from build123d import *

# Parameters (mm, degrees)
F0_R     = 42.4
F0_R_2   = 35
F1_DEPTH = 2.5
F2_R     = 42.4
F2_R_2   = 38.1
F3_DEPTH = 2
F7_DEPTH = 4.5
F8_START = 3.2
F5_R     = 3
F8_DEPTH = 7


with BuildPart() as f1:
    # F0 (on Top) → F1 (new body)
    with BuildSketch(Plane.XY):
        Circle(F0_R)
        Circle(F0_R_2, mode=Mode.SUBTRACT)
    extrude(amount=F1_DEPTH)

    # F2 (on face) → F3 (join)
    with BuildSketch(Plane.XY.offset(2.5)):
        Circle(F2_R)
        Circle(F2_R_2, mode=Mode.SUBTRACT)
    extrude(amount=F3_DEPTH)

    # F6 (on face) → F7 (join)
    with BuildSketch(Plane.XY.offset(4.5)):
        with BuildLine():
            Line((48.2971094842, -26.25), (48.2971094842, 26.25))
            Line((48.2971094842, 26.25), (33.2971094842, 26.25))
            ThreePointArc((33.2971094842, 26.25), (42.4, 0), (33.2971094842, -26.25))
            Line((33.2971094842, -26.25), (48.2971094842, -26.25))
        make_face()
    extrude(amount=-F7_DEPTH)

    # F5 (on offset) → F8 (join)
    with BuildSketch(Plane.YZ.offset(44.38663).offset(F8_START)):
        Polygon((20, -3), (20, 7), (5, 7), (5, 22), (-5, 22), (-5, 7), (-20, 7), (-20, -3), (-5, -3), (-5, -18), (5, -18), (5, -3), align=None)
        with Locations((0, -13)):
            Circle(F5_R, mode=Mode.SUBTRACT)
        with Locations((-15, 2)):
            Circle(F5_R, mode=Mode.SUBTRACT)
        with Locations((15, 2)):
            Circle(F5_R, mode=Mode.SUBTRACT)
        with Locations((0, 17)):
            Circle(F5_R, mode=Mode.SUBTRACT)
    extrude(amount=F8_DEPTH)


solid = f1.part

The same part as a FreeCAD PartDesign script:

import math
import FreeCAD as App
import Part
import Sketcher

V = App.Vector


def add_polygon(sketch, points):
    """Adds a closed chain of lines whose ends are joined by coincident constraints."""
    first, n = sketch.GeometryCount, len(points)
    for a, b in zip(points, points[1:] + points[:1]):
        sketch.addGeometry(Part.LineSegment(App.Vector(*a, 0), App.Vector(*b, 0)), False)
    for i in range(n):
        sketch.addConstraint(Sketcher.Constraint("Coincident", first + i, 2, first + (i + 1) % n, 1))

doc = App.newDocument("Part")
body = doc.addObject("PartDesign::Body", "Body")

# Sketch on XY plane
sketch1 = doc.addObject("Sketcher::SketchObject", "Sketch")
body.addObject(sketch1)
sketch1.AttachmentSupport = (doc.XY_Plane, [""])
sketch1.MapMode = "FlatFace"
sketch1.addGeometry(Part.Circle(V(0, 0, 0), V(0, 0, 1), 42), False)
sketch1.addGeometry(Part.Circle(V(0, 0, 0), V(0, 0, 1), 35), False)
sketch1.addConstraint(Sketcher.Constraint("Coincident", 0, 3, -1, 1))
sketch1.addConstraint(Sketcher.Constraint("Coincident", 1, 3, -1, 1))
sketch1.addConstraint(Sketcher.Constraint("Diameter", 1, 70.0))
sketch1.addConstraint(Sketcher.Constraint("Diameter", 0, 84.8))
pad1 = doc.addObject("PartDesign::Pad", "Pad")
body.addObject(pad1)
pad1.Profile = sketch1
pad1.Length = 2.5

# Sketch on XY plane
sketch2 = doc.addObject("Sketcher::SketchObject", "Sketch001")
body.addObject(sketch2)
sketch2.AttachmentSupport = (doc.XY_Plane, [""])
sketch2.MapMode = "FlatFace"
sketch2.AttachmentOffset = App.Placement(V(0, 0, 2.5), App.Rotation())
sketch2.addGeometry(Part.Circle(V(0, 0, 0), V(0, 0, 1), 42), False)
sketch2.addGeometry(Part.Circle(V(0, 0, 0), V(0, 0, 1), 38), False)
sketch2.addConstraint(Sketcher.Constraint("Coincident", 0, 3, -1, 1))
sketch2.addConstraint(Sketcher.Constraint("Coincident", 1, 3, -1, 1))
sketch2.addConstraint(Sketcher.Constraint("Diameter", 0, 84.8))
sketch2.addConstraint(Sketcher.Constraint("Diameter", 1, 76.2))
pad2 = doc.addObject("PartDesign::Pad", "Pad001")
body.addObject(pad2)
pad2.Profile = sketch2
pad2.Length = 2

# Sketch on XY plane
sketch3 = doc.addObject("Sketcher::SketchObject", "Sketch002")
body.addObject(sketch3)
sketch3.AttachmentSupport = (doc.XY_Plane, [""])
sketch3.MapMode = "FlatFace"
sketch3.AttachmentOffset = App.Placement(V(0, 0, 4.5), App.Rotation())
sketch3.addGeometry(Part.LineSegment(V(48, -26, 0), V(48, 26, 0)), False)
sketch3.addGeometry(Part.LineSegment(V(48, 26, 0), V(33, 26, 0)), False)
sketch3.addGeometry(Part.ArcOfCircle(Part.Circle(V(0, 0, 0), V(0, 0, 1), 42), math.radians(-38), math.radians(38)), False)
sketch3.addGeometry(Part.LineSegment(V(33, -26, 0), V(48, -26, 0)), False)
sketch3.addConstraint(Sketcher.Constraint("Coincident", 0, 2, 1, 1))
sketch3.addConstraint(Sketcher.Constraint("Coincident", 1, 2, 2, 2))
sketch3.addConstraint(Sketcher.Constraint("Coincident", 2, 1, 3, 1))
sketch3.addConstraint(Sketcher.Constraint("Coincident", 3, 2, 0, 1))
sketch3.addConstraint(Sketcher.Constraint("Vertical", 0))
sketch3.addConstraint(Sketcher.Constraint("Horizontal", 1))
sketch3.addConstraint(Sketcher.Constraint("Horizontal", 3))
sketch3.addConstraint(Sketcher.Constraint("Coincident", 2, 3, -1, 1))
sketch3.addConstraint(Sketcher.Constraint("Vertical", 1, 2, 2, 1))
sketch3.addConstraint(Sketcher.Constraint("Radius", 2, 42.4))
sketch3.addConstraint(Sketcher.Constraint("DistanceX", 1, 2, 1, 1, 15.0))
sketch3.addConstraint(Sketcher.Constraint("DistanceY", 0, 1, 0, 2, 52.5))
pad3 = doc.addObject("PartDesign::Pad", "Pad002")
body.addObject(pad3)
pad3.Profile = sketch3
pad3.Length = 4.5
pad3.Reversed = True

# Sketch on YZ plane
sketch4 = doc.addObject("Sketcher::SketchObject", "Sketch003")
body.addObject(sketch4)
sketch4.AttachmentSupport = (doc.YZ_Plane, [""])
sketch4.MapMode = "FlatFace"
sketch4.AttachmentOffset = App.Placement(V(0, 0, 47.58663), App.Rotation())
add_polygon(sketch4, [(20, -3), (20, 7), (5, 7), (5, 22), (-5, 22), (-5, 7), (-20, 7), (-20, -3), (-5, -3), (-5, -18), (5, -18), (5, -3)])  # lines 0-11
sketch4.addGeometry(Part.Circle(V(0, -13, 0), V(0, 0, 1), 3), False)  # 12
sketch4.addGeometry(Part.Circle(V(-15, 2, 0), V(0, 0, 1), 3), False)  # 13
sketch4.addGeometry(Part.Circle(V(15, 2, 0), V(0, 0, 1), 3), False)  # 14
sketch4.addGeometry(Part.Circle(V(0, 17, 0), V(0, 0, 1), 3), False)  # 15
sketch4.addConstraint(Sketcher.Constraint("Vertical", 0))
sketch4.addConstraint(Sketcher.Constraint("Horizontal", 1))
sketch4.addConstraint(Sketcher.Constraint("Vertical", 2))
sketch4.addConstraint(Sketcher.Constraint("Horizontal", 3))
sketch4.addConstraint(Sketcher.Constraint("Vertical", 4))
sketch4.addConstraint(Sketcher.Constraint("Horizontal", 5))
sketch4.addConstraint(Sketcher.Constraint("Vertical", 6))
sketch4.addConstraint(Sketcher.Constraint("Horizontal", 7))
sketch4.addConstraint(Sketcher.Constraint("Vertical", 8))
sketch4.addConstraint(Sketcher.Constraint("Horizontal", 9))
sketch4.addConstraint(Sketcher.Constraint("Vertical", 10))
sketch4.addConstraint(Sketcher.Constraint("Horizontal", 11))
sketch4.addConstraint(Sketcher.Constraint("Equal", 12, 13))
sketch4.addConstraint(Sketcher.Constraint("Equal", 13, 14))
sketch4.addConstraint(Sketcher.Constraint("Equal", 14, 15))
sketch4.addConstraint(Sketcher.Constraint("Symmetric", 13, 3, 14, 3, -2))
sketch4.addConstraint(Sketcher.Constraint("Symmetric", 1, 2, 4, 2, -2))
sketch4.addConstraint(Sketcher.Constraint("Symmetric", 7, 2, 10, 2, -2))
sketch4.addConstraint(Sketcher.Constraint("PointOnObject", 12, 3, -2))
sketch4.addConstraint(Sketcher.Constraint("PointOnObject", 15, 3, -2))
sketch4.addConstraint(Sketcher.Constraint("Vertical", 4, 2, 7, 2))
sketch4.addConstraint(Sketcher.Constraint("Equal", 1, 5))
sketch4.addConstraint(Sketcher.Constraint("Equal", 9, 0))
sketch4.addConstraint(Sketcher.Constraint("Equal", 11, 2))
sketch4.addConstraint(Sketcher.Constraint("Equal", 4, 8))
sketch4.addConstraint(Sketcher.Constraint("Diameter", 12, 6.0))
sketch4.addConstraint(Sketcher.Constraint("DistanceX", 1, 2, 1, 1, 15.0))
sketch4.addConstraint(Sketcher.Constraint("DistanceX", 3, 2, 3, 1, 10.0))
sketch4.addConstraint(Sketcher.Constraint("DistanceY", 12, 3, -1, 1, 13.0))
sketch4.addConstraint(Sketcher.Constraint("DistanceX", 13, 3, -1, 1, 15.0))
sketch4.addConstraint(Sketcher.Constraint("DistanceY", -1, 1, 13, 3, 2.0))
sketch4.addConstraint(Sketcher.Constraint("DistanceY", -1, 1, 15, 3, 17.0))
sketch4.addConstraint(Sketcher.Constraint("DistanceY", -1, 1, 0, 2, 7.0))
pad4 = doc.addObject("PartDesign::Pad", "Pad003")
body.addObject(pad4)
pad4.Profile = sketch4
pad4.Length = 7

doc.recompute()
